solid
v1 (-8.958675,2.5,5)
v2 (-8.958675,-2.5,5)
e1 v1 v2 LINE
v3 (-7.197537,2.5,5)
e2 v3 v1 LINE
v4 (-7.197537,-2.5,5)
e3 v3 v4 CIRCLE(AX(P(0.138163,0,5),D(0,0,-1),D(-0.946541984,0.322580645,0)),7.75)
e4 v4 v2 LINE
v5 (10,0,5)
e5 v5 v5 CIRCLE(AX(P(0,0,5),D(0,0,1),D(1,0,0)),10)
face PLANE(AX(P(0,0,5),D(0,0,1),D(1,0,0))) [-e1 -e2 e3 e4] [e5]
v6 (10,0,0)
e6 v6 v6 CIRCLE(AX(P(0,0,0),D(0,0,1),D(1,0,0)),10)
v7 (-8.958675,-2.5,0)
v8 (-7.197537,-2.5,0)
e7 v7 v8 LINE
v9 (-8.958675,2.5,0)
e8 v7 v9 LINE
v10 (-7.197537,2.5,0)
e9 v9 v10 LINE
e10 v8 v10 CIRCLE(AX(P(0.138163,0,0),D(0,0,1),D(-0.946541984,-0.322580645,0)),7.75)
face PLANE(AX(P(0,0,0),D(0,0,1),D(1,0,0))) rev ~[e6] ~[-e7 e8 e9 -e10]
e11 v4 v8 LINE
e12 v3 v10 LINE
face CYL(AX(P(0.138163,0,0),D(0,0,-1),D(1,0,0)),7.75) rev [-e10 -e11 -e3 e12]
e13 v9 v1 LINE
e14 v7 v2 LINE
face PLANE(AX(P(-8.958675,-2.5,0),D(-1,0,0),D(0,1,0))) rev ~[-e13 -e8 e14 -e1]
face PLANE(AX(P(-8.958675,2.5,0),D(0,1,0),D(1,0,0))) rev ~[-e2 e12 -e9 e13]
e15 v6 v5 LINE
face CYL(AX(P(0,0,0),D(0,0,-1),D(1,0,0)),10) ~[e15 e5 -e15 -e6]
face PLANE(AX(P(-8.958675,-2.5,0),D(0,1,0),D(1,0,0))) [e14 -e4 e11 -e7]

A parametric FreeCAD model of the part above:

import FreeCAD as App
import Part
import Sketcher


def add_polygon(sketch, points):
    """Adds a closed chain of lines whose ends are joined by coincident constraints."""
    first, n = sketch.GeometryCount, len(points)
    for a, b in zip(points, points[1:] + points[:1]):
        sketch.addGeometry(Part.LineSegment(App.Vector(*a, 0), App.Vector(*b, 0)), False)
    for i in range(n):
        sketch.addConstraint(Sketcher.Constraint("Coincident", first + i, 2, first + (i + 1) % n, 1))

doc = App.newDocument("Part")
body = doc.addObject("PartDesign::Body", "Body")

sketch1 = doc.addObject("Sketcher::SketchObject", "Sketch")
body.addObject(sketch1)
sketch1.AttachmentSupport = (doc.XY_Plane, [""])
sketch1.MapMode = "FlatFace"
sketch1.addGeometry(Part.Circle(App.Vector(0, 0, 0), App.Vector(0, 0, 1), 10), False)
sketch1.addConstraint(Sketcher.Constraint("Coincident", 0, 3, -1, 1))
sketch1.addConstraint(Sketcher.Constraint("Diameter", 0, 20.0))
pad1 = doc.addObject("PartDesign::Pad", "Pad")
body.addObject(pad1)
pad1.Profile = sketch1
pad1.Length = 5

sketch2 = doc.addObject("Sketcher::SketchObject", "Sketch001")
body.addObject(sketch2)
sketch2.AttachmentSupport = (doc.XY_Plane, [""])
sketch2.MapMode = "FlatFace"
sketch2.addGeometry(Part.Circle(App.Vector(0.138163, 0, 0), App.Vector(0, 0, 1), 7.75), False)
sketch2.addConstraint(Sketcher.Constraint("PointOnObject", 0, 3, -1))
sketch2.addConstraint(Sketcher.Constraint("Diameter", 0, 15.5))
sketch2.addConstraint(Sketcher.Constraint("DistanceX", -1, 1, 0, 3, 0.138163))
pocket1 = doc.addObject("PartDesign::Pocket", "Pocket")
body.addObject(pocket1)
pocket1.Profile = sketch2
pocket1.Length = 25.4
pocket1.Reversed = True

sketch3 = doc.addObject("Sketcher::SketchObject", "Sketch002")
body.addObject(sketch3)
sketch3.AttachmentSupport = (doc.XY_Plane, [""])
sketch3.MapMode = "FlatFace"
add_polygon(sketch3, [(-8.958675, 2.5), (-8.958675, -2.5), (0, -2.5), (0, 2.5)])
sketch3.addConstraint(Sketcher.Constraint("Vertical", 0))
sketch3.addConstraint(Sketcher.Constraint("Horizontal", 1))
sketch3.addConstraint(Sketcher.Constraint("Vertical", 2))
sketch3.addConstraint(Sketcher.Constraint("Horizontal", 3))
sketch3.addConstraint(Sketcher.Constraint("Symmetric", 1, 2, 2, 2, -1, 1))
sketch3.addConstraint(Sketcher.Constraint("DistanceY", 0, 2, 0, 1, 5.0))
sketch3.addConstraint(Sketcher.Constraint("DistanceX", 1, 1, 1, 2, 8.958675))
pocket2 = doc.addObject("PartDesign::Pocket", "Pocket001")
body.addObject(pocket2)
pocket2.Profile = sketch3
pocket2.Length = 80
pocket2.Reversed = True

doc.recompute()
